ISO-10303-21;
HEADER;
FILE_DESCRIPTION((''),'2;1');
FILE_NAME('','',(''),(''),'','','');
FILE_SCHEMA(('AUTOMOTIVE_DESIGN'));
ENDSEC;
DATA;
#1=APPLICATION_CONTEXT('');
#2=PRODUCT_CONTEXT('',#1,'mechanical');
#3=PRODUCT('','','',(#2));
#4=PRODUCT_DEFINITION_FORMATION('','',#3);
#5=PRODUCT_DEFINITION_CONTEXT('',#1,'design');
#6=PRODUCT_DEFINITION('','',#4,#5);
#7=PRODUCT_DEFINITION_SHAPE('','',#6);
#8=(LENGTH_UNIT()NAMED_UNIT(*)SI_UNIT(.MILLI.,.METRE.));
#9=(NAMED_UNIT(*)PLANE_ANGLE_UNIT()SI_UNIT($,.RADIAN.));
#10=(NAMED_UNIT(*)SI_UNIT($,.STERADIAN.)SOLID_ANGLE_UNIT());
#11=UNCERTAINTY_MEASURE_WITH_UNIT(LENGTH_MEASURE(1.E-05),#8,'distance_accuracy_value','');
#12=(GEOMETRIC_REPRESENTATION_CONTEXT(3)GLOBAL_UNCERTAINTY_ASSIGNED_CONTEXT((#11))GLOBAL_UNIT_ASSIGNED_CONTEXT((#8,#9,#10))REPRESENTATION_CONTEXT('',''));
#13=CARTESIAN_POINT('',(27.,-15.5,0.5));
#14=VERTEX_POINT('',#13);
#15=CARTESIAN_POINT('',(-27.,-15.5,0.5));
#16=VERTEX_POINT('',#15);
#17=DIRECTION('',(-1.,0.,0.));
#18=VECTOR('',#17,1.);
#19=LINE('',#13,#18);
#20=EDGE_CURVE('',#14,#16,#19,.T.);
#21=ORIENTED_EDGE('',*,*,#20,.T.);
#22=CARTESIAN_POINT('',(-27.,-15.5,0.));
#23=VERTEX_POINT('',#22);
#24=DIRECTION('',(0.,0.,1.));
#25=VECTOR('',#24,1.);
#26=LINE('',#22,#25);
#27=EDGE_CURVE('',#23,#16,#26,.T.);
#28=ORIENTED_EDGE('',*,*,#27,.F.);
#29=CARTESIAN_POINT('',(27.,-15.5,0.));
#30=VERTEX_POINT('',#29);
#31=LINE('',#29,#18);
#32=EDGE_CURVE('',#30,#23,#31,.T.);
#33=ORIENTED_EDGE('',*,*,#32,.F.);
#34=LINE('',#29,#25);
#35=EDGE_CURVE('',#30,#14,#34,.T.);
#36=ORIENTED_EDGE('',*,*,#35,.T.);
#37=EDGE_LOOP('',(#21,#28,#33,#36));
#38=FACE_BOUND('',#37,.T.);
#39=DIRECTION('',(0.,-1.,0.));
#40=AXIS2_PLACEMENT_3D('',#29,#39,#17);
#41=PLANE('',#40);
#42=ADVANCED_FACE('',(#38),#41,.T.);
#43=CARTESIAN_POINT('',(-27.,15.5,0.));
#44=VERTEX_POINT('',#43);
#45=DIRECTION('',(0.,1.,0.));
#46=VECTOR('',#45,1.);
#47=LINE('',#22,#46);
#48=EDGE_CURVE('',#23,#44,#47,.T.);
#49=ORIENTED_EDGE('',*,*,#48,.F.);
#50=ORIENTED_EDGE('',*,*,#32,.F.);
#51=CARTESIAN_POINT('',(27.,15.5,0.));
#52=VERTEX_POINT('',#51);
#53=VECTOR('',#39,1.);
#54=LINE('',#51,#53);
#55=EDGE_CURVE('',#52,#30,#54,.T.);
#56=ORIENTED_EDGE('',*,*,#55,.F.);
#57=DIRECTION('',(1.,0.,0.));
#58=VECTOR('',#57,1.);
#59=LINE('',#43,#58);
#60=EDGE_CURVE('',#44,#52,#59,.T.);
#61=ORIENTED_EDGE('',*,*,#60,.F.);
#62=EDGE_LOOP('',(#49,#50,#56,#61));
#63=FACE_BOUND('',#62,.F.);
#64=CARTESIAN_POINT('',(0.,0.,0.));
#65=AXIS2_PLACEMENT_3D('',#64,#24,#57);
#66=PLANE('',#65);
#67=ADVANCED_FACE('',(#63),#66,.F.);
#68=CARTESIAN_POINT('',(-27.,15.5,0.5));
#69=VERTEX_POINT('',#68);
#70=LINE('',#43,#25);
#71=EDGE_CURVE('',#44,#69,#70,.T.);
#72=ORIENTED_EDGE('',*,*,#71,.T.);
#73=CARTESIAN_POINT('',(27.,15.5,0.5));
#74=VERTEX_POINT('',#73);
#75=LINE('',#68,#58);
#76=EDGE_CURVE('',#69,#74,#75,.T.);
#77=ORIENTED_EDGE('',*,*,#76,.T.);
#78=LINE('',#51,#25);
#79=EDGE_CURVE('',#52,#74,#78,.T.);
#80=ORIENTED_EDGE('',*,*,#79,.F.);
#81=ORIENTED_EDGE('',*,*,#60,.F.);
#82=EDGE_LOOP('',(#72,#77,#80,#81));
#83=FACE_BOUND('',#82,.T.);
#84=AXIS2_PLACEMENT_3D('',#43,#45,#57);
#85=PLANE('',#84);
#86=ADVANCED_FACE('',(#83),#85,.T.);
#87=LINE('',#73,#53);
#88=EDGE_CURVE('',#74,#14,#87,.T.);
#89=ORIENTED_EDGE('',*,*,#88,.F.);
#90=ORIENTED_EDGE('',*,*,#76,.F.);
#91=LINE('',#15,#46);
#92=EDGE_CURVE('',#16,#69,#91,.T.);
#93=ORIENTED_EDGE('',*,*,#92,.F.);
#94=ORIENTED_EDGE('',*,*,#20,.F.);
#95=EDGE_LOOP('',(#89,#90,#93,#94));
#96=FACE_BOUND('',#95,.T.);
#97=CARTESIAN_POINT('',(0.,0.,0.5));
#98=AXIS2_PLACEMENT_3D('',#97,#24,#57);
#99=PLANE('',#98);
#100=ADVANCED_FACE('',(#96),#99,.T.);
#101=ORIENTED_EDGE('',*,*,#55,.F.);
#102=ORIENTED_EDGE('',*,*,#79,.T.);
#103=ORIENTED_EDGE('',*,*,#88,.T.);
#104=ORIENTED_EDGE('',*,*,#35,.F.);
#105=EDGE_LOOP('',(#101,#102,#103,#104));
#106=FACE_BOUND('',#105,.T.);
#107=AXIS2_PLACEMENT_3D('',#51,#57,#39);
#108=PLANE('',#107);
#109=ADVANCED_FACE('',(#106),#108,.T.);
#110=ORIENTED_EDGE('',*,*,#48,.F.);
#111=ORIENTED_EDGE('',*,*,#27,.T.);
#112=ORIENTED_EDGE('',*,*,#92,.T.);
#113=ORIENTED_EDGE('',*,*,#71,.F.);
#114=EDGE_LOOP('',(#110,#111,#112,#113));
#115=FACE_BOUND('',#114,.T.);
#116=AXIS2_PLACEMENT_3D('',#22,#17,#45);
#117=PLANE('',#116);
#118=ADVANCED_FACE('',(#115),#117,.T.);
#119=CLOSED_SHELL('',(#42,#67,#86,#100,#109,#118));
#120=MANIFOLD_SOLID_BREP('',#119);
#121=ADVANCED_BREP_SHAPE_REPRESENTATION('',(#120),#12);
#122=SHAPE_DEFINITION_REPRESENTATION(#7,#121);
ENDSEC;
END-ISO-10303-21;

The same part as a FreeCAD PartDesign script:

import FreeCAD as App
import Part
import Sketcher
from FreeCAD import Vector

doc = App.newDocument("Part")
body = doc.addObject("PartDesign::Body", "Body")

sketch1 = doc.addObject("Sketcher::SketchObject", "Sketch")
body.addObject(sketch1)
sketch1.AttachmentSupport = (doc.XY_Plane, [""])
sketch1.MapMode = "FlatFace"
sketch1.addGeometry([
    Part.LineSegment(Vector(27, 16, 0), Vector(-27, 16, 0)),
    Part.LineSegment(Vector(-27, 16, 0), Vector(-27, -16, 0)),
    Part.LineSegment(Vector(-27, -16, 0), Vector(27, -16, 0)),
    Part.LineSegment(Vector(27, -16, 0), Vector(27, 16, 0)),
], False)
sketch1.addConstraint([
    Sketcher.Constraint("Coincident", 0, 2, 1, 1),
    Sketcher.Constraint("Coincident", 1, 2, 2, 1),
    Sketcher.Constraint("Coincident", 2, 2, 3, 1),
    Sketcher.Constraint("Coincident", 3, 2, 0, 1),
    Sketcher.Constraint("Horizontal", 0),
    Sketcher.Constraint("Vertical", 1),
    Sketcher.Constraint("Horizontal", 2),
    Sketcher.Constraint("Vertical", 3),
    Sketcher.Constraint("Symmetric", 0, 2, 2, 2, -1, 1),
    Sketcher.Constraint("DistanceX", 0, 2, 0, 1, 54.0),
    Sketcher.Constraint("DistanceY", 1, 2, 1, 1, 31.0),
])
pad1 = doc.addObject("PartDesign::Pad", "Pad")
body.addObject(pad1)
pad1.Profile = sketch1
pad1.Length = 0.5

doc.recompute()
